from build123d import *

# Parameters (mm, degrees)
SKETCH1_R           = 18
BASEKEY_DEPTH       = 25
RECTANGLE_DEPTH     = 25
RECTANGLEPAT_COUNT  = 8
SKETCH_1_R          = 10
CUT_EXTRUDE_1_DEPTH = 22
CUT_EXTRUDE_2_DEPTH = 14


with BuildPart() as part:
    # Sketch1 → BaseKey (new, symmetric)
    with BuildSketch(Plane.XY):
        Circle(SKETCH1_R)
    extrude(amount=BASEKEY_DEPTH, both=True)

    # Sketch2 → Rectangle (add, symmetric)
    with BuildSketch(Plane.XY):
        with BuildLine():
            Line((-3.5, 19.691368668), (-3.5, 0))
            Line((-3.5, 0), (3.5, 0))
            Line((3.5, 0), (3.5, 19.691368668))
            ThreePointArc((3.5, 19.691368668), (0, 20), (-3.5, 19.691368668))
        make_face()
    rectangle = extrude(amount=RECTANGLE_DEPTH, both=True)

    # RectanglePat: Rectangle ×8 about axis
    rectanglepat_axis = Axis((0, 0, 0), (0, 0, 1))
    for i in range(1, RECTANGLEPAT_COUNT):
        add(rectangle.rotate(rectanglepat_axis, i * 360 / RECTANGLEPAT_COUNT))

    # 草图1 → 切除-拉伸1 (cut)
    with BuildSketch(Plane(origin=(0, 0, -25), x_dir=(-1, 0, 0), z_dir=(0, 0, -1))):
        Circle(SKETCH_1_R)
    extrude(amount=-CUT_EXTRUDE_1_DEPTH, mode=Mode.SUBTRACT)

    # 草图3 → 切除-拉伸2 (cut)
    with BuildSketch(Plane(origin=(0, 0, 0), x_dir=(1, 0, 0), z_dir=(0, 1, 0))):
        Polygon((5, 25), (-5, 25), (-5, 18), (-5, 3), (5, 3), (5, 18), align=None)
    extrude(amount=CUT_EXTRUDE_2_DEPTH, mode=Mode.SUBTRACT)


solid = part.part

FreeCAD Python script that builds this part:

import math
import FreeCAD as App
import Part
import Sketcher
from FreeCAD import Vector
Q = App.Units.Quantity

doc = App.newDocument("Part")
body = doc.addObject("PartDesign::Body", "Body")

# Sketch on XY plane
sketch1 = body.newObject("Sketcher::SketchObject", "Sketch")
sketch1.AttachmentSupport = (doc.getObject("XY_Plane"), [""])
sketch1.MapMode = "FlatFace"
sketch1.addGeometry(Part.Circle(Vector(0, 0, 0), Vector(0, 0, 1), 18), False)
sketch1.addConstraint([
    Sketcher.Constraint("Coincident", 0, 3, -1, 1),
    Sketcher.Constraint("Diameter", 0, Q("36 mm")),
])
pad1 = body.newObject("PartDesign::Pad", "Pad")
pad1.Profile = sketch1
pad1.Length = 50
pad1.Midplane = True

# Sketch on XY plane
sketch2 = body.newObject("Sketcher::SketchObject", "Sketch001")
sketch2.AttachmentSupport = (doc.getObject("XY_Plane"), [""])
sketch2.MapMode = "FlatFace"
sketch2.addGeometry([
    Part.LineSegment(Vector(-4, 20, 0), Vector(-4, 0, 0)),
    Part.LineSegment(Vector(-4, 0, 0), Vector(4, 0, 0)),
    Part.LineSegment(Vector(4, 0, 0), Vector(4, 20, 0)),
    Part.ArcOfCircle(Part.Circle(Vector(0, 0, 0), Vector(0, 0, 1), 20), math.radians(80), math.radians(100)),
], False)
sketch2.addConstraint([
    Sketcher.Constraint("Coincident", 0, 2, 1, 1),
    Sketcher.Constraint("Coincident", 1, 2, 2, 1),
    Sketcher.Constraint("Coincident", 2, 2, 3, 1),
    Sketcher.Constraint("Coincident", 3, 2, 0, 1),
    Sketcher.Constraint("Vertical", 0),
    Sketcher.Constraint("Horizontal", 1),
    Sketcher.Constraint("Vertical", 2),
    Sketcher.Constraint("Coincident", 3, 3, -1, 1),
    Sketcher.Constraint("Symmetric", 0, 2, 1, 2, -1, 1),
    Sketcher.Constraint("Radius", 3, Q("20 mm")),
    Sketcher.Constraint("DistanceX", 1, 1, 1, 2, Q("7 mm")),
])
pad2 = body.newObject("PartDesign::Pad", "Pad001")
pad2.Profile = sketch2
pad2.Length = 50
pad2.Midplane = True
doc.recompute()

polarpattern = body.newObject("PartDesign::PolarPattern", "PolarPattern")
polarpattern.Originals = [pad2]
polarpattern.Axis = (doc.getObject("Z_Axis"), [""])
polarpattern.Angle = 360
polarpattern.Occurrences = 8
body.Tip = polarpattern

# Sketch on XY plane
sketch3 = body.newObject("Sketcher::SketchObject", "Sketch002")
sketch3.AttachmentSupport = (doc.getObject("XY_Plane"), [""])
sketch3.MapMode = "FlatFace"
sketch3.AttachmentOffset = App.Placement(Vector(0, 0, -25), App.Rotation())
sketch3.addGeometry(Part.Circle(Vector(0, 0, 0), Vector(0, 0, 1), 10), False)
sketch3.addConstraint([
    Sketcher.Constraint("Coincident", 0, 3, -1, 1),
    Sketcher.Constraint("Diameter", 0, Q("20 mm")),
])
pocket1 = body.newObject("PartDesign::Pocket", "Pocket")
pocket1.Profile = sketch3
pocket1.Length = 22
pocket1.Reversed = True

# Sketch on XZ plane
sketch4 = body.newObject("Sketcher::SketchObject", "Sketch003")
sketch4.AttachmentSupport = (doc.getObject("XZ_Plane"), [""])
sketch4.MapMode = "FlatFace"
sketch4.addGeometry([
    Part.LineSegment(Vector(5, -25, 0), Vector(-5, -25, 0)),
    Part.LineSegment(Vector(-5, -25, 0), Vector(-5, -3, 0)),
    Part.LineSegment(Vector(-5, -3, 0), Vector(5, -3, 0)),
    Part.LineSegment(Vector(5, -3, 0), Vector(5, -25, 0)),
], False)
sketch4.addConstraint([
    Sketcher.Constraint("Coincident", 0, 2, 1, 1),
    Sketcher.Constraint("Coincident", 1, 2, 2, 1),
    Sketcher.Constraint("Coincident", 2, 2, 3, 1),
    Sketcher.Constraint("Coincident", 3, 2, 0, 1),
    Sketcher.Constraint("Horizontal", 0),
    Sketcher.Constraint("Vertical", 1),
    Sketcher.Constraint("Horizontal", 2),
    Sketcher.Constraint("Vertical", 3),
    Sketcher.Constraint("DistanceX", 0, 2, 0, 1, Q("10 mm")),
    Sketcher.Constraint("DistanceY", 1, 1, 1, 2, Q("22 mm")),
    Sketcher.Constraint("DistanceX", 0, 2, -1, 1, Q("5 mm")),
    Sketcher.Constraint("DistanceY", 0, 2, -1, 1, Q("25 mm")),
])
pocket2 = body.newObject("PartDesign::Pocket", "Pocket001")
pocket2.Profile = sketch4
pocket2.Length = 14

doc.recompute()
